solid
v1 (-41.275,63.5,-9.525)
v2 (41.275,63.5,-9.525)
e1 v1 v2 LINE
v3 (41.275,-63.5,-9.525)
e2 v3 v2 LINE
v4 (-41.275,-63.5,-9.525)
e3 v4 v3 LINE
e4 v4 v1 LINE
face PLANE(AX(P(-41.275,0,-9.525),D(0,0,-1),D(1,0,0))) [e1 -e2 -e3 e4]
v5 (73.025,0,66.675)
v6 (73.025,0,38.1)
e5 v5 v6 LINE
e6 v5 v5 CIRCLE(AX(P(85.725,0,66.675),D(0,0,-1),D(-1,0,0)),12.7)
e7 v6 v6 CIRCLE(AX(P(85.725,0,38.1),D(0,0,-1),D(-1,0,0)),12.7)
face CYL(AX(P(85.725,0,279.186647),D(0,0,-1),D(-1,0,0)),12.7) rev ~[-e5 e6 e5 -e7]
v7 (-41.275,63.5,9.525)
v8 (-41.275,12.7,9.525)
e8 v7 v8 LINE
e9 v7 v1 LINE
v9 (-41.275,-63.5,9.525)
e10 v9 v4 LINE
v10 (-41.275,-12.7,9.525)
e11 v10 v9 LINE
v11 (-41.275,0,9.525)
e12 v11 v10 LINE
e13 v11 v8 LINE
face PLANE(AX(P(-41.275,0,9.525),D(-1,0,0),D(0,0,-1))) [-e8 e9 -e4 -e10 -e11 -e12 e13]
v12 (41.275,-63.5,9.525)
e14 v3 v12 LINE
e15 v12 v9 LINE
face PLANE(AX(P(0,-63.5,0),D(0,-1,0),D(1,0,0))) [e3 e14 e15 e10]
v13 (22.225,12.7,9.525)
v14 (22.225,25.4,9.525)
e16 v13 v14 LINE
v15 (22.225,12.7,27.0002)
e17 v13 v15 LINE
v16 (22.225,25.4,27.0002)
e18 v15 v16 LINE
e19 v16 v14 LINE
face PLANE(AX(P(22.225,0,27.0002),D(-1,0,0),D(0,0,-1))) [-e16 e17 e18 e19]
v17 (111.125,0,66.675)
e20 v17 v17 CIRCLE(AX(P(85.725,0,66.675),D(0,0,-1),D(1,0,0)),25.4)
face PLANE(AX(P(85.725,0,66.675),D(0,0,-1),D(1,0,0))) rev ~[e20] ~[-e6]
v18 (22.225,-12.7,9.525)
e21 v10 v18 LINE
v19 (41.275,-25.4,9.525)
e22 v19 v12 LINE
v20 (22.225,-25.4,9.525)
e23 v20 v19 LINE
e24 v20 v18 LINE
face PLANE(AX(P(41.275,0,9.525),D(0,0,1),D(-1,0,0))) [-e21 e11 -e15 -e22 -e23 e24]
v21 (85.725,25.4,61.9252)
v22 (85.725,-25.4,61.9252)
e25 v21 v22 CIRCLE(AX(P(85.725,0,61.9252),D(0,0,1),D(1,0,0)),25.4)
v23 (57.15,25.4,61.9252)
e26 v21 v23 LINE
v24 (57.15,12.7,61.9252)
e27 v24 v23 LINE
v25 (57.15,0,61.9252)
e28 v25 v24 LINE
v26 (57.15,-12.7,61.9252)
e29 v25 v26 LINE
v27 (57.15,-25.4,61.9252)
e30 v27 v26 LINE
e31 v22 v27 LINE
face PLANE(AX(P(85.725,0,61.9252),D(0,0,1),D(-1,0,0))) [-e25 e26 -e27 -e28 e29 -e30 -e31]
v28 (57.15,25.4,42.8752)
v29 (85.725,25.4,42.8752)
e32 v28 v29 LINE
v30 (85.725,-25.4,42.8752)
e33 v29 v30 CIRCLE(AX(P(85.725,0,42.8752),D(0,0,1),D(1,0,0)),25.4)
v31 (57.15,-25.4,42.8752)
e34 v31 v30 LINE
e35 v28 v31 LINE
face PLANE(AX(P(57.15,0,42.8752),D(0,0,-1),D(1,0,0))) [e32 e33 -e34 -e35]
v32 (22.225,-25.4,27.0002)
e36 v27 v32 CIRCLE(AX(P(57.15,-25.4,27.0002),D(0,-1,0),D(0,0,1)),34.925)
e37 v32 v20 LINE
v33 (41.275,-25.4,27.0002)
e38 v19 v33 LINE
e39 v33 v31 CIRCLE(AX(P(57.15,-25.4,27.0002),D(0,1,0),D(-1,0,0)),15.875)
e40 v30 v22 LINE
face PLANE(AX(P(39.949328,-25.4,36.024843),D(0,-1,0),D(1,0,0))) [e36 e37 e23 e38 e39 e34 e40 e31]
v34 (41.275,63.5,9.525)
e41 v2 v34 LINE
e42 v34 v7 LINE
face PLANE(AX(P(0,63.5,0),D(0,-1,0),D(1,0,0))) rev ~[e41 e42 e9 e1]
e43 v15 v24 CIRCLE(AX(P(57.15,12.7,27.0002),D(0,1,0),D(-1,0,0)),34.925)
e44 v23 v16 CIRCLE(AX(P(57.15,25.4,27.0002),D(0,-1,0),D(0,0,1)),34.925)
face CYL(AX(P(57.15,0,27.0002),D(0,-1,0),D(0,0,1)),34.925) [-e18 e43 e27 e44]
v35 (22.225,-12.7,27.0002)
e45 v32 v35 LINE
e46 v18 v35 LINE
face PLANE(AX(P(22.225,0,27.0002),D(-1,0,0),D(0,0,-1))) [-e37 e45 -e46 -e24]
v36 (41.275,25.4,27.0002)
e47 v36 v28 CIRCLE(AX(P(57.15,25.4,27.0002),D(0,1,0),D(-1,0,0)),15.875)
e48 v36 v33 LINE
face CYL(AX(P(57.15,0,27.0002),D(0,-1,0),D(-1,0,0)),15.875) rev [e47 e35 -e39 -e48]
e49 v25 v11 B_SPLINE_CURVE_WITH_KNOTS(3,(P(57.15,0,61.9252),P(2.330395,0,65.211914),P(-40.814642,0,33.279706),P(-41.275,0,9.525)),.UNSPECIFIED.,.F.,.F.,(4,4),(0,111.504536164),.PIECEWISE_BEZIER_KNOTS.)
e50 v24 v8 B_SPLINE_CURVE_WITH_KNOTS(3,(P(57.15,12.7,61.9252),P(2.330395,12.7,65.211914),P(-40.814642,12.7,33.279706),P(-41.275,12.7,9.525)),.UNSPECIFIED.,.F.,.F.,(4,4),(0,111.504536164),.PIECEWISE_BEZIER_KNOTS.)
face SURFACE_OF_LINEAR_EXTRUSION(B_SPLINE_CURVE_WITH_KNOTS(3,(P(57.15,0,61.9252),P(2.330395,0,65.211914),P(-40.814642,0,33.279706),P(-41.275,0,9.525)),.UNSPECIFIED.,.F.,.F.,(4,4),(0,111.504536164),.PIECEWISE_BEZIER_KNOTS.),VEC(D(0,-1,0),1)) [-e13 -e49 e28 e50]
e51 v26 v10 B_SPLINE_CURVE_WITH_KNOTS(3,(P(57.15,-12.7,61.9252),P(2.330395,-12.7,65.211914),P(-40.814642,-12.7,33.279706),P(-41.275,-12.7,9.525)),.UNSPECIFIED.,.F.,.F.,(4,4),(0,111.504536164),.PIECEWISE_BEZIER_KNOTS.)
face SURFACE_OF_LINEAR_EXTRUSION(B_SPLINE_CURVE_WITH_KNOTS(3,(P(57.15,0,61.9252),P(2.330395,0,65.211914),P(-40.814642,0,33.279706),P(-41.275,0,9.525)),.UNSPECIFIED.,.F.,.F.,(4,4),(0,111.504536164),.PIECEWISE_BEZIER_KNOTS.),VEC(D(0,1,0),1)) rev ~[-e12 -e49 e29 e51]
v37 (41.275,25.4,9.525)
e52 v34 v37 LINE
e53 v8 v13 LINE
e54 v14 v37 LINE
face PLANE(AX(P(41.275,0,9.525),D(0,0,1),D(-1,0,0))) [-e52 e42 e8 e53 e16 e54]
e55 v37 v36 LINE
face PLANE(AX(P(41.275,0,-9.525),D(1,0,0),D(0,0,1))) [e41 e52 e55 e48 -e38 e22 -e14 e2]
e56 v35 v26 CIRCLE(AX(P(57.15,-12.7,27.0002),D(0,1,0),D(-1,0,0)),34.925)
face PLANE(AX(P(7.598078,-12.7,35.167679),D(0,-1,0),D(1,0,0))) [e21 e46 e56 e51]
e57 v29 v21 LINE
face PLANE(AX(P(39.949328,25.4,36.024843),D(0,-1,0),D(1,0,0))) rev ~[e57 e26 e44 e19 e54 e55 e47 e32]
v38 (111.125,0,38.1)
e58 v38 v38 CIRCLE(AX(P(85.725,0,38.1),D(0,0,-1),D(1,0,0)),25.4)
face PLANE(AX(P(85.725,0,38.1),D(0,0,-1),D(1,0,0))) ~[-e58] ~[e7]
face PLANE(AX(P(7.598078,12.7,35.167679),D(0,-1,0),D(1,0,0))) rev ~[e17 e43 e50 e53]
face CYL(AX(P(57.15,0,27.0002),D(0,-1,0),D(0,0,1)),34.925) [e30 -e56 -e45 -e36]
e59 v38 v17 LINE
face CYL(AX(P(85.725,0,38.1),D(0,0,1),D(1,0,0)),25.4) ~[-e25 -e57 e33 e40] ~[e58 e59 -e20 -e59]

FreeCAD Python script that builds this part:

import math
import FreeCAD as App
import Part
import Sketcher
from FreeCAD import Vector
Q = App.Units.Quantity


def add_polygon(sketch, points):
    """Adds a closed chain of lines whose ends are joined by coincident constraints."""
    first, n = sketch.GeometryCount, len(points)
    for a, b in zip(points, points[1:] + points[:1]):
        sketch.addGeometry(Part.LineSegment(App.Vector(*a, 0), App.Vector(*b, 0)), False)
    for i in range(n):
        sketch.addConstraint(Sketcher.Constraint("Coincident", first + i, 2, first + (i + 1) % n, 1))

doc = App.newDocument("Part")
params = doc.addObject("Spreadsheet::Sheet", "Params")
for row, (alias, value) in enumerate([
    ("sketch1_width", "3.25 in"),
    ("sketch1_height", "0.75 in"),
    ("pad1_length", "5 in"),
    ("sketch2_radius", "0.625 in"),
    ("sketch2_radius2", "1.375 in"),
    ("sketch2_width", "1.125 in"),
    ("sketch2_height", "0.688 in"),
    ("pad2_length", "2 in"),
    ("sketch3_width", "2.5 in"),
    ("sketch3_radius", "1.375 in"),
    ("pad3_length", "1 in"),
    ("sketch4_width", "1 in"),
    ("sketch4_height", "1.125 in"),
    ("revolution_angle", "360 deg"),
    ("sketch5_diameter", "1 in"),
    ("hole_diameter", "1 in"),
], start=1):
    params.set(f"A{row}", alias)
    params.set(f"B{row}", "=" + value)
    params.setAlias(f"B{row}", alias)

body = doc.addObject("PartDesign::Body", "Body")

# Sketch on XZ plane
sketch1 = body.newObject("Sketcher::SketchObject", "Sketch")
sketch1.AttachmentSupport = (doc.getObject("XZ_Plane"), [""])
sketch1.MapMode = "FlatFace"
add_polygon(sketch1, [(41.275, -9.525), (41.275, 9.525), (-41.275, 9.525), (-41.275, -9.525)])  # lines 0-3
sketch1.addConstraint(Sketcher.Constraint("Vertical", 0))
sketch1.addConstraint(Sketcher.Constraint("Horizontal", 1))
sketch1.addConstraint(Sketcher.Constraint("Vertical", 2))
sketch1.addConstraint(Sketcher.Constraint("Horizontal", 3))
sketch1.addConstraint(Sketcher.Constraint("Symmetric", 0, 2, 2, 2, -1, 1))
sketch1.addConstraint(Sketcher.Constraint("DistanceX", 1, 2, 1, 1, Q("3.25 in")))
sketch1.addConstraint(Sketcher.Constraint("DistanceY", 0, 1, 0, 2, Q("0.75 in")))
sketch1.setExpression("Constraints[9]", "Params.sketch1_width")
sketch1.setExpression("Constraints[10]", "Params.sketch1_height")
pad1 = body.newObject("PartDesign::Pad", "Pad")
pad1.Profile = sketch1
pad1.setExpression("Length", "Params.pad1_length")
pad1.Midplane = True

# Sketch on XZ plane
sketch2 = body.newObject("Sketcher::SketchObject", "Sketch001")
sketch2.AttachmentSupport = (doc.getObject("XZ_Plane"), [""])
sketch2.MapMode = "FlatFace"
sketch2.addGeometry(Part.LineSegment(Vector(22.225, 9.525, 0), Vector(41.275, 9.525, 0)), False)
sketch2.addGeometry(Part.LineSegment(Vector(41.275, 9.525, 0), Vector(41.275, 27.0002, 0)), False)
sketch2.addGeometry(Part.ArcOfCircle(Part.Circle(Vector(57.15, 27.0002, 0), Vector(0, 0, 1), 15.875), math.radians(90), math.radians(180)), False)
sketch2.addGeometry(Part.LineSegment(Vector(57.15, 42.8752, 0), Vector(85.725, 42.8752, 0)), False)
sketch2.addGeometry(Part.LineSegment(Vector(85.725, 42.8752, 0), Vector(85.725, 61.9252, 0)), False)
sketch2.addGeometry(Part.LineSegment(Vector(85.725, 61.9252, 0), Vector(57.15, 61.9252, 0)), False)
sketch2.addGeometry(Part.ArcOfCircle(Part.Circle(Vector(57.15, 27.0002, 0), Vector(0, 0, 1), 34.925), math.radians(90), math.radians(180)), False)
sketch2.addGeometry(Part.LineSegment(Vector(22.225, 27.0002, 0), Vector(22.225, 9.525, 0)), False)
sketch2.addConstraint(Sketcher.Constraint("Coincident", 0, 2, 1, 1))
sketch2.addConstraint(Sketcher.Constraint("Tangent", 1, 2, 2, 2))
sketch2.addConstraint(Sketcher.Constraint("Tangent", 2, 1, 3, 1))
sketch2.addConstraint(Sketcher.Constraint("Coincident", 3, 2, 4, 1))
sketch2.addConstraint(Sketcher.Constraint("Coincident", 4, 2, 5, 1))
sketch2.addConstraint(Sketcher.Constraint("Tangent", 5, 2, 6, 1))
sketch2.addConstraint(Sketcher.Constraint("Tangent", 6, 2, 7, 1))
sketch2.addConstraint(Sketcher.Constraint("Coincident", 7, 2, 0, 1))
sketch2.addConstraint(Sketcher.Constraint("Horizontal", 0))
sketch2.addConstraint(Sketcher.Constraint("Vertical", 1))
sketch2.addConstraint(Sketcher.Constraint("Horizontal", 3))
sketch2.addConstraint(Sketcher.Constraint("Vertical", 4))
sketch2.addConstraint(Sketcher.Constraint("Horizontal", 5))
sketch2.addConstraint(Sketcher.Constraint("Vertical", 7))
sketch2.addConstraint(Sketcher.Constraint("Coincident", 6, 3, 2, 3))
sketch2.addConstraint(Sketcher.Constraint("Radius", 2, Q("0.625 in")))
sketch2.addConstraint(Sketcher.Constraint("Radius", 6, Q("1.375 in")))
sketch2.addConstraint(Sketcher.Constraint("DistanceX", 3, 1, 3, 2, Q("1.125 in")))
sketch2.addConstraint(Sketcher.Constraint("DistanceY", 1, 1, 1, 2, Q("0.688 in")))
sketch2.addConstraint(Sketcher.Constraint("DistanceX", -1, 1, 2, 3, Q("2.25 in")))
sketch2.addConstraint(Sketcher.Constraint("DistanceY", -1, 1, 2, 3, Q("1.063 in")))
sketch2.setExpression("Constraints[15]", "Params.sketch2_radius")
sketch2.setExpression("Constraints[16]", "Params.sketch2_radius2")
sketch2.setExpression("Constraints[17]", "Params.sketch2_width")
sketch2.setExpression("Constraints[18]", "Params.sketch2_height")
pad2 = body.newObject("PartDesign::Pad", "Pad001")
pad2.Profile = sketch2
pad2.setExpression("Length", "Params.pad2_length")
pad2.Midplane = True

# Sketch on XZ plane
sketch3 = body.newObject("Sketcher::SketchObject", "Sketch002")
sketch3.AttachmentSupport = (doc.getObject("XZ_Plane"), [""])
sketch3.MapMode = "FlatFace"
sketch3.addGeometry(Part.LineSegment(Vector(-41.275, 9.525, 0), Vector(22.225, 9.525, 0)), False)
sketch3.addGeometry(Part.LineSegment(Vector(22.225, 9.525, 0), Vector(22.225, 27.0002, 0)), False)
sketch3.addGeometry(Part.ArcOfCircle(Part.Circle(Vector(57.15, 27.0002, 0), Vector(0, 0, 1), 34.925), math.radians(90), math.radians(180)), False)
sketch3.addGeometry(Part.BSplineCurve([Vector(57.15, 61.9252, 0), Vector(2.330395, 65.211914, 0), Vector(-40.814642, 33.279706, 0), Vector(-41.275, 9.525, 0)], [4, 4], [0, 111.504536164], False, 3, [1, 1, 1, 1], False), False)
sketch3.addConstraint(Sketcher.Constraint("Block", 3))
sketch3.addConstraint(Sketcher.Constraint("Coincident", 0, 2, 1, 1))
sketch3.addConstraint(Sketcher.Constraint("Tangent", 1, 2, 2, 2))
sketch3.addConstraint(Sketcher.Constraint("Coincident", 2, 1, 3, 1))
sketch3.addConstraint(Sketcher.Constraint("Coincident", 3, 2, 0, 1))
sketch3.addConstraint(Sketcher.Constraint("Horizontal", 0))
sketch3.addConstraint(Sketcher.Constraint("Vertical", 1))
sketch3.addConstraint(Sketcher.Constraint("DistanceX", 0, 1, 0, 2, Q("2.5 in")))
sketch3.addConstraint(Sketcher.Constraint("Radius", 2, Q("1.375 in")))
sketch3.setExpression("Constraints[7]", "Params.sketch3_width")
sketch3.setExpression("Constraints[8]", "Params.sketch3_radius")
pad3 = body.newObject("PartDesign::Pad", "Pad002")
pad3.Profile = sketch3
pad3.setExpression("Length", "Params.pad3_length")
pad3.Midplane = True

# Sketch on XZ plane
sketch4 = body.newObject("Sketcher::SketchObject", "Sketch003")
sketch4.AttachmentSupport = (doc.getObject("XZ_Plane"), [""])
sketch4.MapMode = "FlatFace"
add_polygon(sketch4, [(85.725, 38.1), (111.125, 38.1), (111.125, 66.675), (85.725, 66.675)])  # lines 0-3
sketch4.addGeometry(Part.LineSegment(Vector(85.725, 66.675, 0), Vector(85.725, 38.1, 0)), True)  # axis
sketch4.addConstraint(Sketcher.Constraint("Horizontal", 0))
sketch4.addConstraint(Sketcher.Constraint("Vertical", 1))
sketch4.addConstraint(Sketcher.Constraint("Horizontal", 2))
sketch4.addConstraint(Sketcher.Constraint("Vertical", 3))
sketch4.addConstraint(Sketcher.Constraint("Vertical", 4))
sketch4.addConstraint(Sketcher.Constraint("Coincident", 4, 1, 2, 2))
sketch4.addConstraint(Sketcher.Constraint("Horizontal", 0, 2, 4, 2))
sketch4.addConstraint(Sketcher.Constraint("DistanceX", 0, 1, 0, 2, Q("1 in")))
sketch4.addConstraint(Sketcher.Constraint("DistanceY", -1, 1, 0, 2, Q("1.5 in")))
sketch4.addConstraint(Sketcher.Constraint("DistanceY", 1, 1, 1, 2, Q("1.125 in")))
sketch4.addConstraint(Sketcher.Constraint("DistanceX", -1, 1, 0, 2, Q("4.375 in")))
sketch4.setExpression("Constraints[11]", "Params.sketch4_width")
sketch4.setExpression("Constraints[13]", "Params.sketch4_height")
revolution = body.newObject("PartDesign::Revolution", "Revolution")
revolution.Profile = sketch4
revolution.ReferenceAxis = (sketch4, ["Axis0"])
revolution.setExpression("Angle", "Params.revolution_angle")

# Sketch on XY plane
sketch5 = body.newObject("Sketcher::SketchObject", "Sketch004")
sketch5.AttachmentSupport = (doc.getObject("XY_Plane"), [""])
sketch5.MapMode = "FlatFace"
sketch5.AttachmentOffset = App.Placement(Vector(0, 0, 2.625 * 25.4), App.Rotation())
sketch5.addGeometry(Part.Circle(Vector(85.725, 0, 0), Vector(0, 0, 1), 12.7), False)
sketch5.addConstraint(Sketcher.Constraint("PointOnObject", 0, 3, -1))
sketch5.addConstraint(Sketcher.Constraint("Diameter", 0, Q("1 in")))
sketch5.addConstraint(Sketcher.Constraint("DistanceX", -1, 1, 0, 3, Q("3.375 in")))
sketch5.setExpression("Constraints[1]", "Params.sketch5_diameter")
doc.recompute()
hole = body.newObject("PartDesign::Hole", "Hole")
hole.Profile = sketch5
hole.ThreadType = "None"
hole.setExpression("Diameter", "Params.hole_diameter")
hole.DepthType = "ThroughAll"

doc.recompute()
